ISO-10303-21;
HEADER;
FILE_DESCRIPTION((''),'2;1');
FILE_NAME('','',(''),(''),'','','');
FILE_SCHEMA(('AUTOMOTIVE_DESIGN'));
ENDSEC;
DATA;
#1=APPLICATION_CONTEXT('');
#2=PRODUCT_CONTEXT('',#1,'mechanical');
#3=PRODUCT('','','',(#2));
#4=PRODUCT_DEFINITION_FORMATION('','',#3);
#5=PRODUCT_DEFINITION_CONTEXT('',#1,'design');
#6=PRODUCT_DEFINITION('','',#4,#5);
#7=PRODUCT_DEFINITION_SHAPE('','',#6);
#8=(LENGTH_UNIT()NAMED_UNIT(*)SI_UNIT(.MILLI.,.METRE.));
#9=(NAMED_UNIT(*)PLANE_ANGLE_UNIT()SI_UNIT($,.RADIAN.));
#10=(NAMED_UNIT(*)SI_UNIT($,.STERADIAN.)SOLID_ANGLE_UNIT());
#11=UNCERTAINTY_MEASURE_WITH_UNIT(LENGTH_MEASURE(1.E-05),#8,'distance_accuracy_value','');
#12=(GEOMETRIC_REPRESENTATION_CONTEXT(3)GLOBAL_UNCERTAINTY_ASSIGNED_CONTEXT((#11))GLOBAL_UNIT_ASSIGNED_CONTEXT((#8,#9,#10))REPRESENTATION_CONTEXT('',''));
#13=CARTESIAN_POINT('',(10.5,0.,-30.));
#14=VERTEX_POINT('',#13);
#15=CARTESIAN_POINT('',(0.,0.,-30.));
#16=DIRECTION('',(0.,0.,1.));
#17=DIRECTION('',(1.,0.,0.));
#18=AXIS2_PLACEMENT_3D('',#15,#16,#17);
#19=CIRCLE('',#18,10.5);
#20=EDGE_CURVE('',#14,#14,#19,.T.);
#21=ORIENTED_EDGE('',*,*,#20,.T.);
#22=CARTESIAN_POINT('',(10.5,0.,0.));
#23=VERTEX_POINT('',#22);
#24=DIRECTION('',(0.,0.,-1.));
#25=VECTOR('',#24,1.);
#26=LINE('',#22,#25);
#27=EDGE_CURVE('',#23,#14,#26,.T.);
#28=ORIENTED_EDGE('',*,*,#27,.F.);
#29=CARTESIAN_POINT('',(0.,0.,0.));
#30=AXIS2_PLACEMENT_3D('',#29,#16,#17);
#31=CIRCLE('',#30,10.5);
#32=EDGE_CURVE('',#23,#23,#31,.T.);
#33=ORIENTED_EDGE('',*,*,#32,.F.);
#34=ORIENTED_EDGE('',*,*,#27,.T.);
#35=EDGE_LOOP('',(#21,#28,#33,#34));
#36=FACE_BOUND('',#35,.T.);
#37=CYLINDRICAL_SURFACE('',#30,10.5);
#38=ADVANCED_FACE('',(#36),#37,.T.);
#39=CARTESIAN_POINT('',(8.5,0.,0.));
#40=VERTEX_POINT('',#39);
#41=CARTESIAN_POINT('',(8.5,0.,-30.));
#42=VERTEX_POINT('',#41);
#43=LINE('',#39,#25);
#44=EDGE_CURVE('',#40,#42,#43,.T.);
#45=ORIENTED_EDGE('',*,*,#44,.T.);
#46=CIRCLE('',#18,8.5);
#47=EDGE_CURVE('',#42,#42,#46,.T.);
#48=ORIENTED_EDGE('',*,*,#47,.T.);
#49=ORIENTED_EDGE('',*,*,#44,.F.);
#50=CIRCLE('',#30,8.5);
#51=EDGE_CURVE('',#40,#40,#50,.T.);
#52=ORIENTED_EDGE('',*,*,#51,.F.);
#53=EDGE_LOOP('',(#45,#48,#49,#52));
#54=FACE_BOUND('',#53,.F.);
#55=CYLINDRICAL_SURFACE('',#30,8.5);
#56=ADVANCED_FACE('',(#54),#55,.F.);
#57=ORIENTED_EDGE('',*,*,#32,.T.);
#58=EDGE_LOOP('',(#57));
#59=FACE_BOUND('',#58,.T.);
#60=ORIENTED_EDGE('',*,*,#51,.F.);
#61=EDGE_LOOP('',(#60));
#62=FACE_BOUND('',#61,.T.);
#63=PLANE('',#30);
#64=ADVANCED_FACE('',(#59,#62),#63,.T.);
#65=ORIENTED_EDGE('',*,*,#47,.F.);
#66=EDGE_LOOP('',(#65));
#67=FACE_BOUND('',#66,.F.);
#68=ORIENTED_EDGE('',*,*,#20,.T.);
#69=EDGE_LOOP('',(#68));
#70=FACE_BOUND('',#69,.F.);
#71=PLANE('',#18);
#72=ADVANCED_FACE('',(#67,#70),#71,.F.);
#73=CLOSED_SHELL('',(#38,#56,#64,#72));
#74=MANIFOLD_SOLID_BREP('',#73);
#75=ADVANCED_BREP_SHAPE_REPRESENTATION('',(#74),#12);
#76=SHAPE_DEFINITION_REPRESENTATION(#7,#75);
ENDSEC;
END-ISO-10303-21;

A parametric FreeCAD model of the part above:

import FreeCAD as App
import Part
import Sketcher
from FreeCAD import Vector
Q = App.Units.Quantity

doc = App.newDocument("Part")
body = doc.addObject("PartDesign::Body", "Body")

sketch1 = doc.addObject("Sketcher::SketchObject", "Sketch")
body.addObject(sketch1)
sketch1.AttachmentSupport = (doc.XY_Plane, [""])
sketch1.MapMode = "FlatFace"
sketch1.addGeometry([
    Part.Circle(Vector(0, 0, 0), Vector(0, 0, 1), 10),
    Part.Circle(Vector(0, 0, 0), Vector(0, 0, 1), 8),
], False)
sketch1.addConstraint([
    Sketcher.Constraint("Coincident", 0, 3, -1, 1),
    Sketcher.Constraint("Coincident", 1, 3, -1, 1),
    Sketcher.Constraint("Diameter", 0, Q("21 mm")),
    Sketcher.Constraint("Diameter", 1, Q("17 mm")),
])
pad1 = doc.addObject("PartDesign::Pad", "Pad")
body.addObject(pad1)
pad1.Profile = sketch1
pad1.Length = 30
pad1.Reversed = True

doc.recompute()
